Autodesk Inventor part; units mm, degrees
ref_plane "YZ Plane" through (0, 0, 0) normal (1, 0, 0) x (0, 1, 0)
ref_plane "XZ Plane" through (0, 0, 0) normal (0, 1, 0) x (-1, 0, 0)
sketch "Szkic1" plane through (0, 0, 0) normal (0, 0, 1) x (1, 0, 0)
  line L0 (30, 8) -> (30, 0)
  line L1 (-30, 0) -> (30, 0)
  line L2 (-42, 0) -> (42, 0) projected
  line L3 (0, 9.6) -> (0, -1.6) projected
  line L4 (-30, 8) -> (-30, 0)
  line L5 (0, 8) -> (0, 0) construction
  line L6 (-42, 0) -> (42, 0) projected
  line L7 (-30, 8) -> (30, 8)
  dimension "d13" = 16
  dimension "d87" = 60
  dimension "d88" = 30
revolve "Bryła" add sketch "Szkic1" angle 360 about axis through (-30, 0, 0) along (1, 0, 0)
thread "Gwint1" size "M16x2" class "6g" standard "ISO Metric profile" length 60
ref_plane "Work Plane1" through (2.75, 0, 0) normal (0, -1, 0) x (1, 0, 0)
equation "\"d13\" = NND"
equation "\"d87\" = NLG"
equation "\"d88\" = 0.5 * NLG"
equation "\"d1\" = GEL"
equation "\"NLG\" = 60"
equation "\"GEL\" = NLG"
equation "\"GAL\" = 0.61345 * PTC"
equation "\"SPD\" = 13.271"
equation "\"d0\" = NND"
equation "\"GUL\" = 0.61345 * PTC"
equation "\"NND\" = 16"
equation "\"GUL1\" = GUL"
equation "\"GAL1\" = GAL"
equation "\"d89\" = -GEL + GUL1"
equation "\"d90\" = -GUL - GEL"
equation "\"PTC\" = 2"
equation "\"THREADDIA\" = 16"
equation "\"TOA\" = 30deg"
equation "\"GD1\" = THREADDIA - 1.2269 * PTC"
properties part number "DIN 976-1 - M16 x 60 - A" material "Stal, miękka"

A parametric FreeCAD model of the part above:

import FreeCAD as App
import Part
import Sketcher

doc = App.newDocument("Part")
body = doc.addObject("PartDesign::Body", "Body")

# Sketch on XY plane
sketch1 = doc.addObject("Sketcher::SketchObject", "Sketch")
body.addObject(sketch1)
sketch1.AttachmentSupport = (doc.XY_Plane, [""])
sketch1.MapMode = "FlatFace"
sketch1.addGeometry([
    Part.LineSegment(App.Vector(30, 0, 0), App.Vector(30, 8, 0)),
    Part.LineSegment(App.Vector(30, 8, 0), App.Vector(-30, 8, 0)),
    Part.LineSegment(App.Vector(-30, 8, 0), App.Vector(-30, 0, 0)),
    Part.LineSegment(App.Vector(-30, 0, 0), App.Vector(30, 0, 0)),
], False)
sketch1.addConstraint([
    Sketcher.Constraint("Coincident", 0, 2, 1, 1),
    Sketcher.Constraint("Coincident", 1, 2, 2, 1),
    Sketcher.Constraint("Coincident", 2, 2, 3, 1),
    Sketcher.Constraint("Coincident", 3, 2, 0, 1),
    Sketcher.Constraint("Vertical", 0),
    Sketcher.Constraint("Horizontal", 1),
    Sketcher.Constraint("Vertical", 2),
    Sketcher.Constraint("Horizontal", 3),
    Sketcher.Constraint("Symmetric", 2, 2, 3, 2, -1, 1),
    Sketcher.Constraint("DistanceX", 1, 2, 1, 1, 60.0),
    Sketcher.Constraint("DistanceY", 0, 1, 0, 2, 8.0),
])
revolution = doc.addObject("PartDesign::Revolution", "Revolution")
body.addObject(revolution)
revolution.Profile = sketch1
revolution.ReferenceAxis = (sketch1, ["H_Axis"])
revolution.Angle = 360

doc.recompute()
